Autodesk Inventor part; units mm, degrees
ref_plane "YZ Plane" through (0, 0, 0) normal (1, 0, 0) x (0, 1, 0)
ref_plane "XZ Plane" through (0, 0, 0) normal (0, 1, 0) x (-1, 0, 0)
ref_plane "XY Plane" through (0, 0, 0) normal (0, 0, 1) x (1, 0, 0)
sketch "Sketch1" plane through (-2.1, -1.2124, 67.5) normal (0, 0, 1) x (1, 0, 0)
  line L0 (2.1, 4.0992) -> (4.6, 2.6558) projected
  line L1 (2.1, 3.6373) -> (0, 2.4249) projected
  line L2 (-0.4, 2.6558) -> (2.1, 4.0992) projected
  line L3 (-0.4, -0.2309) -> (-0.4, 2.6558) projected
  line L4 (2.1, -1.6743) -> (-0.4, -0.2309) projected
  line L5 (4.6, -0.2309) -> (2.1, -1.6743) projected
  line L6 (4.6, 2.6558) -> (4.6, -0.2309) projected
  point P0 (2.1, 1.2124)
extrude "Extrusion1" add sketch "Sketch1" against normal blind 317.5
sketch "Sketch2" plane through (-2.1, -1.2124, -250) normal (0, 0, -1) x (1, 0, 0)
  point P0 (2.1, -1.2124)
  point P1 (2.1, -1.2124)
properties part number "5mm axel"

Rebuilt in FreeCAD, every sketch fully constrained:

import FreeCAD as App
import Part
import Sketcher

V = App.Vector
Q = App.Units.Quantity


def add_polygon(sketch, points):
    """Adds a closed chain of lines whose ends are joined by coincident constraints."""
    first, n = sketch.GeometryCount, len(points)
    for a, b in zip(points, points[1:] + points[:1]):
        sketch.addGeometry(Part.LineSegment(App.Vector(*a, 0), App.Vector(*b, 0)), False)
    for i in range(n):
        sketch.addConstraint(Sketcher.Constraint("Coincident", first + i, 2, first + (i + 1) % n, 1))

doc = App.newDocument("Part")
body = doc.addObject("PartDesign::Body", "Body")

# Sketch on XY plane
sketch1 = doc.addObject("Sketcher::SketchObject", "Sketch")
body.addObject(sketch1)
sketch1.AttachmentSupport = (doc.XY_Plane, [""])
sketch1.MapMode = "FlatFace"
sketch1.AttachmentOffset = App.Placement(V(0, 0, 67.5), App.Rotation())
add_polygon(sketch1, [(2.5, 1.4), (0, 2.9), (-2.5, 1.4), (-2.5, -1.4), (0, -2.9), (2.5, -1.4)])  # lines 0-5
sketch1.addConstraint([
    Sketcher.Constraint("Vertical", 2),
    Sketcher.Constraint("Vertical", 5),
    Sketcher.Constraint("Symmetric", 0, 2, 3, 2, -1, 1),
    Sketcher.Constraint("Symmetric", 1, 2, 4, 2, -1, 1),
    Sketcher.Constraint("PointOnObject", 0, 2, -2),
    Sketcher.Constraint("Parallel", 0, 3),
    Sketcher.Constraint("Horizontal", 2, 2, 4, 2),
    Sketcher.Constraint("Angle", 0, Q("149.9996 deg")),
    Sketcher.Constraint("DistanceY", 2, 2, 2, 1, 2.8867),
    Sketcher.Constraint("DistanceY", 3, 2, 0, 2, Q("0.2273 in")),
])
pad1 = doc.addObject("PartDesign::Pad", "Pad")
body.addObject(pad1)
pad1.Profile = sketch1
pad1.Length = Q("12.5 in")
pad1.Reversed = True

doc.recompute()
